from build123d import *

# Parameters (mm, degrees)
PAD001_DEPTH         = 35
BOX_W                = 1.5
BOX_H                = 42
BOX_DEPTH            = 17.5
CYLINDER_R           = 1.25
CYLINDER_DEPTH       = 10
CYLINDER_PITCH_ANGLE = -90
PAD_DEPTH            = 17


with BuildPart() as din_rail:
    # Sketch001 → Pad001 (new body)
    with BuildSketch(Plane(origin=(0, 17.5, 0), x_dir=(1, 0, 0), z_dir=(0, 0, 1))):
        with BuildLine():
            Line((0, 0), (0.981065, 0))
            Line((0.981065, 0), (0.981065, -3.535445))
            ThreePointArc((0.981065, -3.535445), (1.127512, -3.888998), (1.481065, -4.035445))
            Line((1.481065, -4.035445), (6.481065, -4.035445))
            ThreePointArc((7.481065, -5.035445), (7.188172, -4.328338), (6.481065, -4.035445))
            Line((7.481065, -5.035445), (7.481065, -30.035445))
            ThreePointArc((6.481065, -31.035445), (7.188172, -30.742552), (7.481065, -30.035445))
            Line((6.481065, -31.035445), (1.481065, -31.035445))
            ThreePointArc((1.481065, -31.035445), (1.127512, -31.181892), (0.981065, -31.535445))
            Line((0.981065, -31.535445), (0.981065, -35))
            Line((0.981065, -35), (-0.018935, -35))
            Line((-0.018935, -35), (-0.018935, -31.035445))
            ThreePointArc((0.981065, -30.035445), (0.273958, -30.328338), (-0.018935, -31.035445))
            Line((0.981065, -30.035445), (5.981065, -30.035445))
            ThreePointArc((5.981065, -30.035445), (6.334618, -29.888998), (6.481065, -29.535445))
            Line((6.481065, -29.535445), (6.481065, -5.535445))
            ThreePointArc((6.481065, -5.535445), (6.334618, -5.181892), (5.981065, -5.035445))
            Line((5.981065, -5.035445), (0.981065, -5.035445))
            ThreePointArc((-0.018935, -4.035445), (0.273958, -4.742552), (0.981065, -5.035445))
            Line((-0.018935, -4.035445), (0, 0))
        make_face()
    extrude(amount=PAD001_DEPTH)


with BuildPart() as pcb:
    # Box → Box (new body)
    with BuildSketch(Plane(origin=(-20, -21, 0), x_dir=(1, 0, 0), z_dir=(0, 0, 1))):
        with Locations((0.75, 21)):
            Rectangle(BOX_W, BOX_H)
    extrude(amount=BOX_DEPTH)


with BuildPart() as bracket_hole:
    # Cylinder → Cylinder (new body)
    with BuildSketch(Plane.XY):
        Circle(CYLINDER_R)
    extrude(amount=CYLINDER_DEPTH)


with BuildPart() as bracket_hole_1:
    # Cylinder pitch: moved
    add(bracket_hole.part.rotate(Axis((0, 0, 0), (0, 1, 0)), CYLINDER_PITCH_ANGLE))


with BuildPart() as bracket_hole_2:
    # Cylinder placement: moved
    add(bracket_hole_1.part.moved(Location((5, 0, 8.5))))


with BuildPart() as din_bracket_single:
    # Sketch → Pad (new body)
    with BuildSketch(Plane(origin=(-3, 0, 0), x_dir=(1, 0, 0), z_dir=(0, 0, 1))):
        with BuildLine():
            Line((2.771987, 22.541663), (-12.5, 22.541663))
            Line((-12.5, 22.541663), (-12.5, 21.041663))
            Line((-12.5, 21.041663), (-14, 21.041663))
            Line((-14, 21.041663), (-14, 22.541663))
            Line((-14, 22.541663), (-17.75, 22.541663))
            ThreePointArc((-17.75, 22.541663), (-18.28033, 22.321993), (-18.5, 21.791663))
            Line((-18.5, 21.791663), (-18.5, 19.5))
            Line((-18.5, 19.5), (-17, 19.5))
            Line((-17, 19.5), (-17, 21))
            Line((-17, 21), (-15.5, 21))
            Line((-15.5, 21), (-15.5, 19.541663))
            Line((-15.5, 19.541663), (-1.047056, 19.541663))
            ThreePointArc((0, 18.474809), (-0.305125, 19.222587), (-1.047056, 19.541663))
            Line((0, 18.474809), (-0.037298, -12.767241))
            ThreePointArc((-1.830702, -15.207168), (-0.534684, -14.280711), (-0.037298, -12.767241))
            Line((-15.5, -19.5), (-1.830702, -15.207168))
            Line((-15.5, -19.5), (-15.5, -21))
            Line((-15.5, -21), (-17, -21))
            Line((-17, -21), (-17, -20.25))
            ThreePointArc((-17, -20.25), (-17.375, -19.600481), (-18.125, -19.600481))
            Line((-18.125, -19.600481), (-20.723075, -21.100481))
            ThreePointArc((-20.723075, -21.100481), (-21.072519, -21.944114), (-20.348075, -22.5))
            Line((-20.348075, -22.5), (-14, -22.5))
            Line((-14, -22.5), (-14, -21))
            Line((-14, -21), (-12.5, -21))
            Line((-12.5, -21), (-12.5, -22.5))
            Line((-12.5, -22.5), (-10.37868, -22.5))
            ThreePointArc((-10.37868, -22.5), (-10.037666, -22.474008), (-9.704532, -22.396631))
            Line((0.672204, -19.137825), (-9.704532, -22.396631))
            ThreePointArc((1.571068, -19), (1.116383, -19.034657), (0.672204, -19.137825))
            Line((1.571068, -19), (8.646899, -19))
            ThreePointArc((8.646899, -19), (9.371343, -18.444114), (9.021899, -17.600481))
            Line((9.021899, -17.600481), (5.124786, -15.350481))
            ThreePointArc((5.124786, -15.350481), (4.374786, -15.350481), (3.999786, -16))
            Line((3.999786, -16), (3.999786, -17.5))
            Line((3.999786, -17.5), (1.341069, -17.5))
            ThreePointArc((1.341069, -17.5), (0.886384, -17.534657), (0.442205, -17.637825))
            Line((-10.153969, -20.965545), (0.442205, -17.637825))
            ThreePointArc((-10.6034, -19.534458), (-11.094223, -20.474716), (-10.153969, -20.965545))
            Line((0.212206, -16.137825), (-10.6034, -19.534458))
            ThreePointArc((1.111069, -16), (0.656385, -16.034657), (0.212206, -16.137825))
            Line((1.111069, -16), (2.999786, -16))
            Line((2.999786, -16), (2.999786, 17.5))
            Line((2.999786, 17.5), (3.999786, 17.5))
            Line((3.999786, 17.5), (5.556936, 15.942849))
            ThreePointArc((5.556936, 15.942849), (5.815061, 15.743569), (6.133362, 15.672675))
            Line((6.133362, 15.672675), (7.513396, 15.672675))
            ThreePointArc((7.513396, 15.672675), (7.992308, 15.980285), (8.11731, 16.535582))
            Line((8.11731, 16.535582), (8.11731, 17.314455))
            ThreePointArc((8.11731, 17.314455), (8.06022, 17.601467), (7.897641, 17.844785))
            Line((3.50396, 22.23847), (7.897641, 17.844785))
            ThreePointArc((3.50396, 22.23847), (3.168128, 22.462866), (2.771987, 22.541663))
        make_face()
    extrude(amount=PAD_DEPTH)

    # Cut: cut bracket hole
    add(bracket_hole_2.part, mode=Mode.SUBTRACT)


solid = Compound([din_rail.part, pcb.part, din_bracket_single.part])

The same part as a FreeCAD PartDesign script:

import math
import FreeCAD as App
import Part
import Sketcher

V = App.Vector
Q = App.Units.Quantity

doc = App.newDocument("Part")
params = doc.addObject("Spreadsheet::Sheet", "Params")
for row, (alias, value) in enumerate([
    ("sketch1_radius", "0.999999 mm"),
    ("sketch1_radius2", "0.500001 mm"),
    ("sketch1_width", "5 mm"),
    ("sketch1_height", "24 mm"),
    ("sketch1_height2", "25 mm"),
    ("pad1_length", "35 mm"),
    ("sketch2_height", "42 mm"),
    ("sketch2_width", "1.5 mm"),
    ("pad2_length", "17.5 mm"),
    ("sketch3_diameter", "2.5 mm"),
    ("pad3_length", "10 mm"),
    ("sketch4_width", "1 mm"),
    ("sketch4_radius", "0.75 mm"),
    ("sketch4_radius2", "0.75 mm"),
    ("sketch4_radius3", "0.75 mm"),
    ("sketch4_radius4", "0.75 mm"),
    ("pad4_length", "17 mm"),
], start=1):
    params.set(f"A{row}", alias)
    params.set(f"B{row}", "=" + value)
    params.setAlias(f"B{row}", alias)

body = doc.addObject("PartDesign::Body", "Body")

sketch1 = doc.addObject("Sketcher::SketchObject", "Sketch")
body.addObject(sketch1)
sketch1.AttachmentSupport = (doc.XY_Plane, [""])
sketch1.MapMode = "FlatFace"
sketch1.addGeometry(Part.LineSegment(V(1, 17.5, 0), V(0, 17.5, 0)), False)
sketch1.addGeometry(Part.LineSegment(V(0, 17.5, 0), V(0, 13.5, 0)), False)
sketch1.addGeometry(Part.ArcOfCircle(Part.Circle(V(1, 13.5, 0), V(0, 0, 1), 1), math.radians(180), math.radians(270)), False)
sketch1.addGeometry(Part.LineSegment(V(1, 12.5, 0), V(6, 12.5, 0)), False)
sketch1.addGeometry(Part.ArcOfCircle(Part.Circle(V(6, 12, 0), V(0, 0, 1), 0.5), math.radians(0), math.radians(90)), False)
sketch1.addGeometry(Part.LineSegment(V(6.5, 12, 0), V(6.5, -12, 0)), False)
sketch1.addGeometry(Part.ArcOfCircle(Part.Circle(V(6, -12, 0), V(0, 0, 1), 0.5), math.radians(-90), math.radians(0)), False)
sketch1.addGeometry(Part.LineSegment(V(6, -12.5, 0), V(1, -12.5, 0)), False)
sketch1.addGeometry(Part.ArcOfCircle(Part.Circle(V(1, -13.5, 0), V(0, 0, 1), 1), math.radians(90), math.radians(180)), False)
sketch1.addGeometry(Part.LineSegment(V(0, -13.5, 0), V(0, -17.5, 0)), False)
sketch1.addGeometry(Part.LineSegment(V(0, -17.5, 0), V(1, -17.5, 0)), False)
sketch1.addGeometry(Part.LineSegment(V(1, -17.5, 0), V(1, -14, 0)), False)
sketch1.addGeometry(Part.ArcOfCircle(Part.Circle(V(1.5, -14, 0), V(0, 0, 1), 0.5), math.radians(90), math.radians(180)), False)
sketch1.addGeometry(Part.LineSegment(V(1.5, -13.5, 0), V(6.5, -13.5, 0)), False)
sketch1.addGeometry(Part.ArcOfCircle(Part.Circle(V(6.5, -12.5, 0), V(0, 0, 1), 1), math.radians(-90), math.radians(0)), False)
sketch1.addGeometry(Part.LineSegment(V(7.5, -12.5, 0), V(7.5, 12.5, 0)), False)
sketch1.addGeometry(Part.ArcOfCircle(Part.Circle(V(6.5, 12.5, 0), V(0, 0, 1), 1), math.radians(0), math.radians(90)), False)
sketch1.addGeometry(Part.LineSegment(V(6.5, 13.5, 0), V(1.5, 13.5, 0)), False)
sketch1.addGeometry(Part.ArcOfCircle(Part.Circle(V(1.5, 14, 0), V(0, 0, 1), 0.5), math.radians(-180), math.radians(-90)), False)
sketch1.addGeometry(Part.LineSegment(V(1, 14, 0), V(1, 17.5, 0)), False)
sketch1.addConstraint(Sketcher.Constraint("Coincident", 0, 2, 1, 1))
sketch1.addConstraint(Sketcher.Constraint("Coincident", 1, 2, 2, 1))
sketch1.addConstraint(Sketcher.Constraint("Tangent", 2, 2, 3, 1))
sketch1.addConstraint(Sketcher.Constraint("Coincident", 3, 2, 4, 2))
sketch1.addConstraint(Sketcher.Constraint("Coincident", 4, 1, 5, 1))
sketch1.addConstraint(Sketcher.Constraint("Coincident", 5, 2, 6, 2))
sketch1.addConstraint(Sketcher.Constraint("Coincident", 6, 1, 7, 1))
sketch1.addConstraint(Sketcher.Constraint("Tangent", 7, 2, 8, 1))
sketch1.addConstraint(Sketcher.Constraint("Tangent", 8, 2, 9, 1))
sketch1.addConstraint(Sketcher.Constraint("Coincident", 9, 2, 10, 1))
sketch1.addConstraint(Sketcher.Constraint("Coincident", 10, 2, 11, 1))
sketch1.addConstraint(Sketcher.Constraint("Coincident", 11, 2, 12, 2))
sketch1.addConstraint(Sketcher.Constraint("Coincident", 12, 1, 13, 1))
sketch1.addConstraint(Sketcher.Constraint("Tangent", 13, 2, 14, 1))
sketch1.addConstraint(Sketcher.Constraint("Tangent", 14, 2, 15, 1))
sketch1.addConstraint(Sketcher.Constraint("Tangent", 15, 2, 16, 1))
sketch1.addConstraint(Sketcher.Constraint("Tangent", 16, 2, 17, 1))
sketch1.addConstraint(Sketcher.Constraint("Coincident", 17, 2, 18, 2))
sketch1.addConstraint(Sketcher.Constraint("Coincident", 18, 1, 19, 1))
sketch1.addConstraint(Sketcher.Constraint("Coincident", 19, 2, 0, 1))
sketch1.addConstraint(Sketcher.Constraint("Horizontal", 0))
sketch1.addConstraint(Sketcher.Constraint("Horizontal", 3))
sketch1.addConstraint(Sketcher.Constraint("Vertical", 5))
sketch1.addConstraint(Sketcher.Constraint("Horizontal", 7))
sketch1.addConstraint(Sketcher.Constraint("Vertical", 9))
sketch1.addConstraint(Sketcher.Constraint("Horizontal", 10))
sketch1.addConstraint(Sketcher.Constraint("Vertical", 11))
sketch1.addConstraint(Sketcher.Constraint("Horizontal", 13))
sketch1.addConstraint(Sketcher.Constraint("Vertical", 15))
sketch1.addConstraint(Sketcher.Constraint("Horizontal", 17))
sketch1.addConstraint(Sketcher.Constraint("Vertical", 19))
sketch1.addConstraint(Sketcher.Constraint("Equal", 4, 6))
sketch1.addConstraint(Sketcher.Constraint("Equal", 2, 8))
sketch1.addConstraint(Sketcher.Constraint("Equal", 6, 12))
sketch1.addConstraint(Sketcher.Constraint("Equal", 8, 14))
sketch1.addConstraint(Sketcher.Constraint("Equal", 14, 16))
sketch1.addConstraint(Sketcher.Constraint("Equal", 12, 18))
sketch1.addConstraint(Sketcher.Constraint("Symmetric", 10, 2, 19, 2, -1))
sketch1.addConstraint(Sketcher.Constraint("PointOnObject", 0, 2, -2))
sketch1.addConstraint(Sketcher.Constraint("Horizontal", 2, 3, 1, 2))
sketch1.addConstraint(Sketcher.Constraint("Horizontal", 16, 3, 2, 2))
sketch1.addConstraint(Sketcher.Constraint("Horizontal", 6, 3, 5, 2))
sketch1.addConstraint(Sketcher.Constraint("Horizontal", 14, 3, 6, 1))
sketch1.addConstraint(Sketcher.Constraint("Horizontal", 12, 3, 11, 2))
sketch1.addConstraint(Sketcher.Constraint("Vertical", 2, 3, 8, 3))
sketch1.addConstraint(Sketcher.Constraint("Vertical", 6, 3, 3, 2))
sketch1.addConstraint(Sketcher.Constraint("Vertical", 16, 3, 4, 1))
sketch1.addConstraint(Sketcher.Constraint("Vertical", 3, 2, 6, 1))
sketch1.addConstraint(Sketcher.Constraint("Vertical", 7, 2, 10, 2))
sketch1.addConstraint(Sketcher.Constraint("Vertical", 18, 3, 12, 1))
sketch1.addConstraint(Sketcher.Constraint("Vertical", 12, 1, 17, 2))
sketch1.addConstraint(Sketcher.Constraint("Radius", 2, Q("0.999999 mm")))
sketch1.addConstraint(Sketcher.Constraint("Radius", 4, Q("0.500001 mm")))
sketch1.addConstraint(Sketcher.Constraint("DistanceX", 3, 1, 3, 2, Q("5 mm")))
sketch1.addConstraint(Sketcher.Constraint("DistanceY", 5, 2, 5, 1, Q("24 mm")))
sketch1.addConstraint(Sketcher.Constraint("DistanceY", 15, 1, 15, 2, Q("25 mm")))
sketch1.addConstraint(Sketcher.Constraint("DistanceY", -1, 1, 0, 2, Q("17.5 mm")))
sketch1.addConstraint(Sketcher.Constraint("DistanceY", 2, 3, 18, 1, Q("0.500001 mm")))
sketch1.addConstraint(Sketcher.Constraint("Distance", 1, Q("4.035489 mm")))
sketch1.addConstraint(Sketcher.Constraint("DistanceX", 0, 2, 0, 1, Q("0.981065 mm")))
sketch1.setExpression("Constraints[51]", "Params.sketch1_radius")
sketch1.setExpression("Constraints[52]", "Params.sketch1_radius2")
sketch1.setExpression("Constraints[53]", "Params.sketch1_width")
sketch1.setExpression("Constraints[54]", "Params.sketch1_height")
sketch1.setExpression("Constraints[55]", "Params.sketch1_height2")
pad1 = doc.addObject("PartDesign::Pad", "Pad")
body.addObject(pad1)
pad1.Profile = sketch1
pad1.setExpression("Length", "Params.pad1_length")
body2 = doc.addObject("PartDesign::Body", "Body001")

sketch2 = doc.addObject("Sketcher::SketchObject", "Sketch001")
body2.addObject(sketch2)
sketch2.AttachmentSupport = (doc.getObject("XY_Plane001"), [""])
sketch2.MapMode = "FlatFace"
sketch2.addGeometry(Part.LineSegment(V(-20, 21, 0), V(-20, -21, 0)), False)
sketch2.addGeometry(Part.LineSegment(V(-20, -21, 0), V(-18.5, -21, 0)), False)
sketch2.addGeometry(Part.LineSegment(V(-18.5, -21, 0), V(-18.5, 21, 0)), False)
sketch2.addGeometry(Part.LineSegment(V(-18.5, 21, 0), V(-20, 21, 0)), False)
sketch2.addConstraint(Sketcher.Constraint("Coincident", 0, 2, 1, 1))
sketch2.addConstraint(Sketcher.Constraint("Coincident", 1, 2, 2, 1))
sketch2.addConstraint(Sketcher.Constraint("Coincident", 2, 2, 3, 1))
sketch2.addConstraint(Sketcher.Constraint("Coincident", 3, 2, 0, 1))
sketch2.addConstraint(Sketcher.Constraint("Vertical", 0))
sketch2.addConstraint(Sketcher.Constraint("Horizontal", 1))
sketch2.addConstraint(Sketcher.Constraint("Vertical", 2))
sketch2.addConstraint(Sketcher.Constraint("Horizontal", 3))
sketch2.addConstraint(Sketcher.Constraint("DistanceY", 0, 2, 0, 1, Q("42 mm")))
sketch2.addConstraint(Sketcher.Constraint("DistanceX", 1, 1, 1, 2, Q("1.5 mm")))
sketch2.addConstraint(Sketcher.Constraint("DistanceX", 0, 2, -1, 1, Q("20 mm")))
sketch2.addConstraint(Sketcher.Constraint("DistanceY", 0, 2, -1, 1, Q("21 mm")))
sketch2.setExpression("Constraints[8]", "Params.sketch2_height")
sketch2.setExpression("Constraints[9]", "Params.sketch2_width")
pad2 = doc.addObject("PartDesign::Pad", "Pad001")
body2.addObject(pad2)
pad2.Profile = sketch2
pad2.setExpression("Length", "Params.pad2_length")
body3 = doc.addObject("PartDesign::Body", "Body002")

sketch3 = doc.addObject("Sketcher::SketchObject", "Sketch002")
body3.addObject(sketch3)
sketch3.AttachmentSupport = (doc.getObject("XY_Plane002"), [""])
sketch3.MapMode = "FlatFace"
sketch3.addGeometry(Part.Circle(V(0, 0, 0), V(0, 0, 1), 1.2), False)
sketch3.addConstraint(Sketcher.Constraint("Coincident", 0, 3, -1, 1))
sketch3.addConstraint(Sketcher.Constraint("Diameter", 0, Q("2.5 mm")))
sketch3.setExpression("Constraints[1]", "Params.sketch3_diameter")
pad3 = doc.addObject("PartDesign::Pad", "Pad002")
body3.addObject(pad3)
pad3.Profile = sketch3
pad3.setExpression("Length", "Params.pad3_length")
body4 = doc.addObject("PartDesign::Body", "Body003")
doc.recompute()

body3.Placement = App.Placement(V(0, 0, 0), App.Rotation(V(0, 1, 0), 270))
boolean = doc.addObject("PartDesign::Boolean", "Boolean")
body4.addObject(boolean)
boolean.Type = "Fuse"
boolean.addObjects([body3])
body5 = doc.addObject("PartDesign::Body", "Body004")
doc.recompute()

body4.Placement = App.Placement(V(5, 0, 8.5), App.Rotation(V(0, 0, 1), 0))
boolean2 = doc.addObject("PartDesign::Boolean", "Boolean001")
body5.addObject(boolean2)
boolean2.Type = "Fuse"
boolean2.addObjects([body4])
body6 = doc.addObject("PartDesign::Body", "Body005")

sketch4 = doc.addObject("Sketcher::SketchObject", "Sketch003")
body6.addObject(sketch4)
sketch4.AttachmentSupport = (doc.getObject("XY_Plane005"), [""])
sketch4.MapMode = "FlatFace"
sketch4.addGeometry(Part.LineSegment(V(-0.228013, 22.541663, 0), V(-15.5, 22.541663, 0)), False)
sketch4.addGeometry(Part.LineSegment(V(-15.5, 22.541663, 0), V(-15.5, 21.041663, 0)), False)
sketch4.addGeometry(Part.LineSegment(V(-15.5, 21.041663, 0), V(-17, 21.041663, 0)), False)
sketch4.addGeometry(Part.LineSegment(V(-17, 21.041663, 0), V(-17, 22.541663, 0)), False)
sketch4.addGeometry(Part.LineSegment(V(-17, 22.541663, 0), V(-20.75, 22.541663, 0)), False)
sketch4.addGeometry(Part.ArcOfCircle(Part.Circle(V(-20.75, 21.791663, 0), V(0, 0, 1), 0.75), math.radians(90.000022), math.radians(179.999978)), False)
sketch4.addGeometry(Part.LineSegment(V(-21.5, 21.791663, 0), V(-21.5, 19.5, 0)), False)
sketch4.addGeometry(Part.LineSegment(V(-21.5, 19.5, 0), V(-20, 19.5, 0)), False)
sketch4.addGeometry(Part.LineSegment(V(-20, 19.5, 0), V(-20, 21, 0)), False)
sketch4.addGeometry(Part.LineSegment(V(-20, 21, 0), V(-18.5, 21, 0)), False)
sketch4.addGeometry(Part.LineSegment(V(-18.5, 21, 0), V(-18.5, 19.541663, 0)), False)
sketch4.addGeometry(Part.LineSegment(V(-18.5, 19.541663, 0), V(-4.047056, 19.541663, 0)), False)
sketch4.addGeometry(Part.ArcOfCircle(Part.Circle(V(-4.065745, 18.476081, 0), V(0, 0, 1), 1.065746), math.radians(-0.068378), math.radians(88.995192)), False)
sketch4.addGeometry(Part.LineSegment(V(-3, 18.474809, 0), V(-3.037298, -12.767241, 0)), False)
sketch4.addGeometry(Part.ArcOfCircle(Part.Circle(V(-5.597918, -12.764186, 0), V(0, 0, 1), 2.560622), math.radians(-72.565163), math.radians(-0.068368)), False)
sketch4.addGeometry(Part.LineSegment(V(-4.830702, -15.207168, 0), V(-18.5, -19.5, 0)), False)
sketch4.addGeometry(Part.LineSegment(V(-18.5, -19.5, 0), V(-18.5, -21, 0)), False)
sketch4.addGeometry(Part.LineSegment(V(-18.5, -21, 0), V(-20, -21, 0)), False)
sketch4.addGeometry(Part.LineSegment(V(-20, -21, 0), V(-20, -20.25, 0)), False)
sketch4.addGeometry(Part.ArcOfCircle(Part.Circle(V(-20.75, -20.25, 0), V(0, 0, 1), 0.75), math.radians(0.000004), math.radians(120)), False)
sketch4.addGeometry(Part.LineSegment(V(-21.125, -19.600481, 0), V(-23.723075, -21.100481, 0)), False)
sketch4.addGeometry(Part.ArcOfCircle(Part.Circle(V(-23.348074, -21.75, 0), V(0, 0, 1), 0.75), math.radians(120.000042), math.radians(269.999959)), False)
sketch4.addGeometry(Part.LineSegment(V(-23.348075, -22.5, 0), V(-17, -22.5, 0)), False)
sketch4.addGeometry(Part.LineSegment(V(-17, -22.5, 0), V(-17, -21, 0)), False)
sketch4.addGeometry(Part.LineSegment(V(-17, -21, 0), V(-15.5, -21, 0)), False)
sketch4.addGeometry(Part.LineSegment(V(-15.5, -21, 0), V(-15.5, -22.5, 0)), False)
sketch4.addGeometry(Part.LineSegment(V(-15.5, -22.5, 0), V(-13.37868, -22.5, 0)), False)
sketch4.addGeometry(Part.ArcOfCircle(Part.Circle(V(-13.378674, -20.250039, 0), V(0, 0, 1), 2.249961), math.radians(-90.000155), math.radians(-72.564991)), False)
sketch4.addGeometry(Part.LineSegment(V(-12.704532, -22.396631, 0), V(-2.327796, -19.137825, 0)), False)
sketch4.addGeometry(Part.ArcOfCircle(Part.Circle(V(-1.428925, -22.000051, 0), V(0, 0, 1), 3.000051), math.radians(90.000125), math.radians(107.434687)), False)
sketch4.addGeometry(Part.LineSegment(V(-1.428932, -19, 0), V(5.646899, -19, 0)), False)
sketch4.addGeometry(Part.ArcOfCircle(Part.Circle(V(5.646898, -18.25, 0), V(0, 0, 1), 0.75), math.radians(-89.999959), math.radians(59.999958)), False)
sketch4.addGeometry(Part.LineSegment(V(6.021899, -17.600481, 0), V(2.124786, -15.350481, 0)), False)
sketch4.addGeometry(Part.ArcOfCircle(Part.Circle(V(1.749786, -16, 0), V(0, 0, 1), 0.75), math.radians(60), math.radians(179.999996)), False)
sketch4.addGeometry(Part.LineSegment(V(0.999786, -16, 0), V(0.999786, -17.5, 0)), False)
sketch4.addGeometry(Part.LineSegment(V(0.999786, -17.5, 0), V(-1.658931, -17.5, 0)), False)
sketch4.addGeometry(Part.ArcOfCircle(Part.Circle(V(-1.658924, -20.500051, 0), V(0, 0, 1), 3.000051), math.radians(90.000125), math.radians(107.434687)), False)
sketch4.addGeometry(Part.LineSegment(V(-2.557795, -17.637825, 0), V(-13.153969, -20.965545, 0)), False)
sketch4.addGeometry(Part.ArcOfCircle(Part.Circle(V(-13.37868, -20.25, 0), V(0, 0, 1), 0.75), math.radians(107.435215), math.radians(287.434441)), False)
sketch4.addGeometry(Part.LineSegment(V(-13.6034, -19.534458, 0), V(-2.787794, -16.137825, 0)), False)
sketch4.addGeometry(Part.ArcOfCircle(Part.Circle(V(-1.888923, -19.000051, 0), V(0, 0, 1), 3.000051), math.radians(90.000144), math.radians(107.434687)), False)
sketch4.addGeometry(Part.LineSegment(V(-1.888931, -16, 0), V(-0.000214, -16, 0)), False)
sketch4.addGeometry(Part.LineSegment(V(-0.000214, -16, 0), V(-0.000214, 17.5, 0)), False)
sketch4.addGeometry(Part.LineSegment(V(-0.000214, 17.5, 0), V(0.999786, 17.5, 0)), False)
sketch4.addGeometry(Part.LineSegment(V(0.999786, 17.5, 0), V(2.556936, 15.942849, 0)), False)
sketch4.addGeometry(Part.ArcOfCircle(Part.Circle(V(3.13336, 16.422672, 0), V(0, 0, 1), 0.749997), math.radians(-140.225599), math.radians(-89.999884)), False)
sketch4.addGeometry(Part.LineSegment(V(3.133362, 15.672675, 0), V(4.513396, 15.672675, 0)), False)
sketch4.addGeometry(Part.ArcOfCircle(Part.Circle(V(4.377843, 16.410324, 0), V(0, 0, 1), 0.750001), math.radians(-79.587298), math.radians(9.614033)), False)
sketch4.addGeometry(Part.LineSegment(V(5.11731, 16.535582, 0), V(5.11731, 17.314455, 0)), False)
sketch4.addGeometry(Part.ArcOfCircle(Part.Circle(V(4.367307, 17.314455, 0), V(0, 0, 1), 0.750003), math.radians(0.000018), math.radians(44.99982)), False)
sketch4.addGeometry(Part.LineSegment(V(4.897641, 17.844785, 0), V(0.50396, 22.23847, 0)), False)
sketch4.addGeometry(Part.ArcOfCircle(Part.Circle(V(-0.228011, 21.5065, 0), V(0, 0, 1), 1.035163), math.radians(44.999934), math.radians(90.000085)), False)
sketch4.addConstraint(Sketcher.Constraint("Coincident", 0, 2, 1, 1))
sketch4.addConstraint(Sketcher.Constraint("Coincident", 1, 2, 2, 1))
sketch4.addConstraint(Sketcher.Constraint("Coincident", 2, 2, 3, 1))
sketch4.addConstraint(Sketcher.Constraint("Coincident", 3, 2, 4, 1))
sketch4.addConstraint(Sketcher.Constraint("Coincident", 4, 2, 5, 1))
sketch4.addConstraint(Sketcher.Constraint("Coincident", 5, 2, 6, 1))
sketch4.addConstraint(Sketcher.Constraint("Coincident", 6, 2, 7, 1))
sketch4.addConstraint(Sketcher.Constraint("Coincident", 7, 2, 8, 1))
sketch4.addConstraint(Sketcher.Constraint("Coincident", 8, 2, 9, 1))
sketch4.addConstraint(Sketcher.Constraint("Coincident", 9, 2, 10, 1))
sketch4.addConstraint(Sketcher.Constraint("Coincident", 10, 2, 11, 1))
sketch4.addConstraint(Sketcher.Constraint("Coincident", 11, 2, 12, 2))
sketch4.addConstraint(Sketcher.Constraint("Coincident", 12, 1, 13, 1))
sketch4.addConstraint(Sketcher.Constraint("Coincident", 13, 2, 14, 2))
sketch4.addConstraint(Sketcher.Constraint("Coincident", 14, 1, 15, 1))
sketch4.addConstraint(Sketcher.Constraint("Coincident", 15, 2, 16, 1))
sketch4.addConstraint(Sketcher.Constraint("Coincident", 16, 2, 17, 1))
sketch4.addConstraint(Sketcher.Constraint("Coincident", 17, 2, 18, 1))
sketch4.addConstraint(Sketcher.Constraint("Coincident", 18, 2, 19, 1))
sketch4.addConstraint(Sketcher.Constraint("Coincident", 19, 2, 20, 1))
sketch4.addConstraint(Sketcher.Constraint("Coincident", 20, 2, 21, 1))
sketch4.addConstraint(Sketcher.Constraint("Coincident", 21, 2, 22, 1))
sketch4.addConstraint(Sketcher.Constraint("Coincident", 22, 2, 23, 1))
sketch4.addConstraint(Sketcher.Constraint("Coincident", 23, 2, 24, 1))
sketch4.addConstraint(Sketcher.Constraint("Coincident", 24, 2, 25, 1))
sketch4.addConstraint(Sketcher.Constraint("Coincident", 25, 2, 26, 1))
sketch4.addConstraint(Sketcher.Constraint("Coincident", 26, 2, 27, 1))
sketch4.addConstraint(Sketcher.Constraint("Coincident", 27, 2, 28, 1))
sketch4.addConstraint(Sketcher.Constraint("Coincident", 28, 2, 29, 2))
sketch4.addConstraint(Sketcher.Constraint("Coincident", 29, 1, 30, 1))
sketch4.addConstraint(Sketcher.Constraint("Coincident", 30, 2, 31, 1))
sketch4.addConstraint(Sketcher.Constraint("Coincident", 31, 2, 32, 1))
sketch4.addConstraint(Sketcher.Constraint("Coincident", 32, 2, 33, 1))
sketch4.addConstraint(Sketcher.Constraint("Coincident", 33, 2, 34, 1))
sketch4.addConstraint(Sketcher.Constraint("Coincident", 34, 2, 35, 1))
sketch4.addConstraint(Sketcher.Constraint("Coincident", 35, 2, 36, 1))
sketch4.addConstraint(Sketcher.Constraint("Coincident", 36, 2, 37, 1))
sketch4.addConstraint(Sketcher.Constraint("Coincident", 37, 2, 38, 2))
sketch4.addConstraint(Sketcher.Constraint("Coincident", 38, 1, 39, 1))
sketch4.addConstraint(Sketcher.Constraint("Coincident", 39, 2, 40, 2))
sketch4.addConstraint(Sketcher.Constraint("Coincident", 40, 1, 41, 1))
sketch4.addConstraint(Sketcher.Constraint("Coincident", 41, 2, 42, 1))
sketch4.addConstraint(Sketcher.Constraint("Coincident", 42, 2, 43, 1))
sketch4.addConstraint(Sketcher.Constraint("Coincident", 43, 2, 44, 1))
sketch4.addConstraint(Sketcher.Constraint("Coincident", 44, 2, 45, 1))
sketch4.addConstraint(Sketcher.Constraint("Coincident", 45, 2, 46, 1))
sketch4.addConstraint(Sketcher.Constraint("Coincident", 46, 2, 47, 1))
sketch4.addConstraint(Sketcher.Constraint("Coincident", 47, 2, 48, 1))
sketch4.addConstraint(Sketcher.Constraint("Coincident", 48, 2, 49, 1))
sketch4.addConstraint(Sketcher.Constraint("Coincident", 49, 2, 50, 1))
sketch4.addConstraint(Sketcher.Constraint("Coincident", 50, 2, 51, 1))
sketch4.addConstraint(Sketcher.Constraint("Coincident", 51, 2, 0, 1))
sketch4.addConstraint(Sketcher.Constraint("Horizontal", 0))
sketch4.addConstraint(Sketcher.Constraint("Vertical", 1))
sketch4.addConstraint(Sketcher.Constraint("Horizontal", 2))
sketch4.addConstraint(Sketcher.Constraint("Vertical", 3))
sketch4.addConstraint(Sketcher.Constraint("Horizontal", 4))
sketch4.addConstraint(Sketcher.Constraint("Vertical", 6))
sketch4.addConstraint(Sketcher.Constraint("Horizontal", 7))
sketch4.addConstraint(Sketcher.Constraint("Vertical", 8))
sketch4.addConstraint(Sketcher.Constraint("Horizontal", 9))
sketch4.addConstraint(Sketcher.Constraint("Vertical", 10))
sketch4.addConstraint(Sketcher.Constraint("Horizontal", 11))
sketch4.addConstraint(Sketcher.Constraint("Vertical", 16))
sketch4.addConstraint(Sketcher.Constraint("Horizontal", 17))
sketch4.addConstraint(Sketcher.Constraint("Vertical", 18))
sketch4.addConstraint(Sketcher.Constraint("Horizontal", 22))
sketch4.addConstraint(Sketcher.Constraint("Vertical", 23))
sketch4.addConstraint(Sketcher.Constraint("Horizontal", 24))
sketch4.addConstraint(Sketcher.Constraint("Vertical", 25))
sketch4.addConstraint(Sketcher.Constraint("Horizontal", 26))
sketch4.addConstraint(Sketcher.Constraint("Horizontal", 30))
sketch4.addConstraint(Sketcher.Constraint("Vertical", 34))
sketch4.addConstraint(Sketcher.Constraint("Horizontal", 35))
sketch4.addConstraint(Sketcher.Constraint("Horizontal", 41))
sketch4.addConstraint(Sketcher.Constraint("Vertical", 42))
sketch4.addConstraint(Sketcher.Constraint("Horizontal", 43))
sketch4.addConstraint(Sketcher.Constraint("Horizontal", 46))
sketch4.addConstraint(Sketcher.Constraint("Vertical", 48))
sketch4.addConstraint(Sketcher.Constraint("DistanceX", 43, 1, 43, 2, Q("1 mm")))
sketch4.addConstraint(Sketcher.Constraint("Radius", 5, Q("0.75 mm")))
sketch4.addConstraint(Sketcher.Constraint("Radius", 19, Q("0.75 mm")))
sketch4.addConstraint(Sketcher.Constraint("Radius", 21, Q("0.75 mm")))
sketch4.addConstraint(Sketcher.Constraint("Radius", 31, Q("0.75 mm")))
sketch4.addConstraint(Sketcher.Constraint("Radius", 33, Q("0.75 mm")))
sketch4.addConstraint(Sketcher.Constraint("Radius", 38, Q("0.75 mm")))
sketch4.addConstraint(Sketcher.Constraint("Radius", 47, Q("0.750001 mm")))
sketch4.addConstraint(Sketcher.Constraint("Distance", 20, Q("2.999999 mm")))
sketch4.addConstraint(Sketcher.Constraint("DistanceX", 2, 2, 2, 1, Q("1.5 mm")))
sketch4.addConstraint(Sketcher.Constraint("DistanceX", 7, 1, 7, 2, Q("1.5 mm")))
sketch4.addConstraint(Sketcher.Constraint("DistanceX", 9, 1, 9, 2, Q("1.5 mm")))
sketch4.addConstraint(Sketcher.Constraint("DistanceX", 17, 2, 17, 1, Q("1.5 mm")))
sketch4.addConstraint(Sketcher.Constraint("DistanceX", 24, 1, 24, 2, Q("1.5 mm")))
sketch4.addConstraint(Sketcher.Constraint("DistanceY", 1, 2, 1, 1, Q("1.5 mm")))
sketch4.addConstraint(Sketcher.Constraint("DistanceY", 3, 1, 3, 2, Q("1.5 mm")))
sketch4.addConstraint(Sketcher.Constraint("DistanceY", 8, 1, 8, 2, Q("1.5 mm")))
sketch4.addConstraint(Sketcher.Constraint("DistanceY", 16, 2, 16, 1, Q("1.5 mm")))
sketch4.addConstraint(Sketcher.Constraint("DistanceY", 23, 1, 23, 2, Q("1.5 mm")))
sketch4.addConstraint(Sketcher.Constraint("DistanceY", 25, 2, 25, 1, Q("1.5 mm")))
sketch4.addConstraint(Sketcher.Constraint("DistanceY", 34, 2, 34, 1, Q("1.5 mm")))
sketch4.addConstraint(Sketcher.Constraint("DistanceY", 42, 1, 42, 2, Q("33.5 mm")))
sketch4.addConstraint(Sketcher.Constraint("DistanceY", 33, 3, -1, 1, Q("16 mm")))
sketch4.addConstraint(Sketcher.Constraint("DistanceX", 2, 2, -1, 1, Q("17 mm")))
sketch4.addConstraint(Sketcher.Constraint("DistanceX", 7, 2, -1, 1, Q("20 mm")))
sketch4.addConstraint(Sketcher.Constraint("DistanceY", -1, 1, 8, 2, Q("21 mm")))
sketch4.addConstraint(Sketcher.Constraint("DistanceX", 12, 1, -1, 1, Q("3 mm")))
sketch4.addConstraint(Sketcher.Constraint("DistanceY", 16, 2, -1, 1, Q("21 mm")))
sketch4.addConstraint(Sketcher.Constraint("DistanceX", 17, 2, -1, 1, Q("20 mm")))
sketch4.addConstraint(Sketcher.Constraint("DistanceX", 22, 2, -1, 1, Q("17 mm")))
sketch4.addConstraint(Sketcher.Constraint("DistanceY", 23, 2, -1, 1, Q("21 mm")))
sketch4.addConstraint(Sketcher.Constraint("DistanceY", 29, 1, -1, 1, Q("19 mm")))
sketch4.addConstraint(Sketcher.Constraint("DistanceY", 33, 2, -1, 1, Q("16 mm")))
sketch4.addConstraint(Sketcher.Constraint("DistanceY", 40, 1, -1, 1, Q("16 mm")))
sketch4.addConstraint(Sketcher.Constraint("Distance", 32, Q("4.499999 mm")))
sketch4.addConstraint(Sketcher.Constraint("DistanceX", 4, 2, 4, 1, Q("3.75 mm")))
sketch4.addConstraint(Sketcher.Constraint("DistanceY", 18, 1, 18, 2, Q("0.75 mm")))
sketch4.addConstraint(Sketcher.Constraint("DistanceY", 19, 3, -1, 1, Q("20.25 mm")))
sketch4.addConstraint(Sketcher.Constraint("DistanceY", 38, 3, -1, 1, Q("20.25 mm")))
sketch4.addConstraint(Sketcher.Constraint("Radius", 14, Q("2.560622 mm")))
sketch4.addConstraint(Sketcher.Constraint("Radius", 27, Q("2.249961 mm")))
sketch4.addConstraint(Sketcher.Constraint("Radius", 29, Q("3.000051 mm")))
sketch4.addConstraint(Sketcher.Constraint("Radius", 36, Q("3.000051 mm")))
sketch4.addConstraint(Sketcher.Constraint("Radius", 40, Q("3.000051 mm")))
sketch4.addConstraint(Sketcher.Constraint("DistanceX", 19, 2, -1, 1, Q("21.125 mm")))
sketch4.addConstraint(Sketcher.Constraint("Radius", 12, Q("1.065746 mm")))
sketch4.addConstraint(Sketcher.Constraint("Radius", 45, Q("0.749997 mm")))
sketch4.addConstraint(Sketcher.Constraint("Radius", 49, Q("0.750003 mm")))
sketch4.addConstraint(Sketcher.Constraint("Radius", 51, Q("1.035163 mm")))
sketch4.addConstraint(Sketcher.Constraint("DistanceX", 26, 1, 26, 2, Q("2.12132 mm")))
sketch4.addConstraint(Sketcher.Constraint("DistanceX", 30, 1, 30, 2, Q("7.075831 mm")))
sketch4.addConstraint(Sketcher.Constraint("DistanceX", -1, 1, 31, 3, Q("5.646898 mm")))
sketch4.addConstraint(Sketcher.Constraint("DistanceY", -1, 1, 51, 3, Q("21.5065 mm")))
sketch4.addConstraint(Sketcher.Constraint("DistanceX", -1, 1, 30, 2, Q("5.646899 mm")))
sketch4.addConstraint(Sketcher.Constraint("DistanceX", -1, 1, 31, 2, Q("6.021899 mm")))
sketch4.addConstraint(Sketcher.Constraint("DistanceX", 38, 1, -1, 1, Q("13.6034 mm")))
sketch4.addConstraint(Sketcher.Constraint("Distance", 15, Q("14.32753 mm")))
sketch4.addConstraint(Sketcher.Constraint("Distance", 39, Q("11.336421 mm")))
sketch4.addConstraint(Sketcher.Constraint("DistanceX", 0, 2, 0, 1, Q("15.271987 mm")))
sketch4.addConstraint(Sketcher.Constraint("DistanceX", 11, 1, 11, 2, Q("14.452944 mm")))
sketch4.addConstraint(Sketcher.Constraint("DistanceX", 22, 1, 22, 2, Q("6.348075 mm")))
sketch4.addConstraint(Sketcher.Constraint("DistanceX", 35, 2, 35, 1, Q("2.658717 mm")))
sketch4.addConstraint(Sketcher.Constraint("DistanceX", 41, 1, 41, 2, Q("1.888717 mm")))
sketch4.addConstraint(Sketcher.Constraint("DistanceX", 46, 1, 46, 2, Q("1.380034 mm")))
sketch4.addConstraint(Sketcher.Constraint("DistanceY", 6, 2, 6, 1, Q("2.291663 mm")))
sketch4.addConstraint(Sketcher.Constraint("DistanceY", 10, 2, 10, 1, Q("1.458337 mm")))
sketch4.addConstraint(Sketcher.Constraint("DistanceY", 48, 1, 48, 2, Q("0.778873 mm")))
sketch4.addConstraint(Sketcher.Constraint("DistanceX", 38, 3, -1, 1, Q("13.37868 mm")))
sketch4.addConstraint(Sketcher.Constraint("DistanceX", -1, 1, 45, 3, Q("3.13336 mm")))
sketch4.addConstraint(Sketcher.Constraint("DistanceY", -1, 1, 45, 3, Q("16.422672 mm")))
sketch4.addConstraint(Sketcher.Constraint("DistanceX", 51, 3, -1, 1, Q("0.228011 mm")))
sketch4.addConstraint(Sketcher.Constraint("DistanceY", -1, 1, 12, 1, Q("18.474809 mm")))
sketch4.addConstraint(Sketcher.Constraint("DistanceY", 13, 2, -1, 1, Q("12.767241 mm")))
sketch4.addConstraint(Sketcher.Constraint("DistanceY", 20, 2, -1, 1, Q("21.100481 mm")))
sketch4.addConstraint(Sketcher.Constraint("DistanceY", 27, 2, -1, 1, Q("22.396631 mm")))
sketch4.addConstraint(Sketcher.Constraint("DistanceY", 32, 2, -1, 1, Q("15.350481 mm")))
sketch4.addConstraint(Sketcher.Constraint("DistanceX", 37, 2, -1, 1, Q("13.153969 mm")))
sketch4.addConstraint(Sketcher.Constraint("DistanceX", 40, 1, -1, 1, Q("1.888931 mm")))
sketch4.addConstraint(Sketcher.Constraint("DistanceY", -1, 1, 44, 2, Q("15.942849 mm")))
sketch4.addConstraint(Sketcher.Constraint("DistanceX", -1, 1, 45, 2, Q("3.133362 mm")))
sketch4.addConstraint(Sketcher.Constraint("DistanceX", -1, 1, 47, 2, Q("5.11731 mm")))
sketch4.addConstraint(Sketcher.Constraint("DistanceX", -1, 1, 49, 2, Q("4.897641 mm")))
sketch4.addConstraint(Sketcher.Constraint("DistanceX", -1, 1, 50, 2, Q("0.50396 mm")))
sketch4.addConstraint(Sketcher.Constraint("Distance", 28, Q("10.876418 mm")))
sketch4.addConstraint(Sketcher.Constraint("Distance", 37, Q("11.106423 mm")))
sketch4.addConstraint(Sketcher.Constraint("Distance", 50, Q("6.213606 mm")))
sketch4.addConstraint(Sketcher.Constraint("DistanceX", 14, 3, -1, 1, Q("5.597918 mm")))
sketch4.addConstraint(Sketcher.Constraint("DistanceY", 14, 3, -1, 1, Q("12.764186 mm")))
sketch4.addConstraint(Sketcher.Constraint("DistanceX", 27, 3, -1, 1, Q("13.378674 mm")))
sketch4.addConstraint(Sketcher.Constraint("DistanceX", 29, 3, -1, 1, Q("1.428925 mm")))
sketch4.addConstraint(Sketcher.Constraint("DistanceX", 36, 3, -1, 1, Q("1.658924 mm")))
sketch4.addConstraint(Sketcher.Constraint("DistanceX", 40, 3, -1, 1, Q("1.888923 mm")))
sketch4.addConstraint(Sketcher.Constraint("DistanceX", -1, 1, 47, 3, Q("4.377843 mm")))
sketch4.setExpression("Constraints[79]", "Params.sketch4_width")
sketch4.setExpression("Constraints[80]", "Params.sketch4_radius")
sketch4.setExpression("Constraints[81]", "Params.sketch4_radius2")
sketch4.setExpression("Constraints[82]", "Params.sketch4_radius3")
sketch4.setExpression("Constraints[83]", "Params.sketch4_radius4")
pad4 = doc.addObject("PartDesign::Pad", "Pad003")
body6.addObject(pad4)
pad4.Profile = sketch4
pad4.setExpression("Length", "Params.pad4_length")
doc.recompute()

boolean3 = doc.addObject("PartDesign::Boolean", "Boolean002")
body6.addObject(boolean3)
boolean3.Type = "Cut"
boolean3.addObjects([body5])

doc.recompute()
